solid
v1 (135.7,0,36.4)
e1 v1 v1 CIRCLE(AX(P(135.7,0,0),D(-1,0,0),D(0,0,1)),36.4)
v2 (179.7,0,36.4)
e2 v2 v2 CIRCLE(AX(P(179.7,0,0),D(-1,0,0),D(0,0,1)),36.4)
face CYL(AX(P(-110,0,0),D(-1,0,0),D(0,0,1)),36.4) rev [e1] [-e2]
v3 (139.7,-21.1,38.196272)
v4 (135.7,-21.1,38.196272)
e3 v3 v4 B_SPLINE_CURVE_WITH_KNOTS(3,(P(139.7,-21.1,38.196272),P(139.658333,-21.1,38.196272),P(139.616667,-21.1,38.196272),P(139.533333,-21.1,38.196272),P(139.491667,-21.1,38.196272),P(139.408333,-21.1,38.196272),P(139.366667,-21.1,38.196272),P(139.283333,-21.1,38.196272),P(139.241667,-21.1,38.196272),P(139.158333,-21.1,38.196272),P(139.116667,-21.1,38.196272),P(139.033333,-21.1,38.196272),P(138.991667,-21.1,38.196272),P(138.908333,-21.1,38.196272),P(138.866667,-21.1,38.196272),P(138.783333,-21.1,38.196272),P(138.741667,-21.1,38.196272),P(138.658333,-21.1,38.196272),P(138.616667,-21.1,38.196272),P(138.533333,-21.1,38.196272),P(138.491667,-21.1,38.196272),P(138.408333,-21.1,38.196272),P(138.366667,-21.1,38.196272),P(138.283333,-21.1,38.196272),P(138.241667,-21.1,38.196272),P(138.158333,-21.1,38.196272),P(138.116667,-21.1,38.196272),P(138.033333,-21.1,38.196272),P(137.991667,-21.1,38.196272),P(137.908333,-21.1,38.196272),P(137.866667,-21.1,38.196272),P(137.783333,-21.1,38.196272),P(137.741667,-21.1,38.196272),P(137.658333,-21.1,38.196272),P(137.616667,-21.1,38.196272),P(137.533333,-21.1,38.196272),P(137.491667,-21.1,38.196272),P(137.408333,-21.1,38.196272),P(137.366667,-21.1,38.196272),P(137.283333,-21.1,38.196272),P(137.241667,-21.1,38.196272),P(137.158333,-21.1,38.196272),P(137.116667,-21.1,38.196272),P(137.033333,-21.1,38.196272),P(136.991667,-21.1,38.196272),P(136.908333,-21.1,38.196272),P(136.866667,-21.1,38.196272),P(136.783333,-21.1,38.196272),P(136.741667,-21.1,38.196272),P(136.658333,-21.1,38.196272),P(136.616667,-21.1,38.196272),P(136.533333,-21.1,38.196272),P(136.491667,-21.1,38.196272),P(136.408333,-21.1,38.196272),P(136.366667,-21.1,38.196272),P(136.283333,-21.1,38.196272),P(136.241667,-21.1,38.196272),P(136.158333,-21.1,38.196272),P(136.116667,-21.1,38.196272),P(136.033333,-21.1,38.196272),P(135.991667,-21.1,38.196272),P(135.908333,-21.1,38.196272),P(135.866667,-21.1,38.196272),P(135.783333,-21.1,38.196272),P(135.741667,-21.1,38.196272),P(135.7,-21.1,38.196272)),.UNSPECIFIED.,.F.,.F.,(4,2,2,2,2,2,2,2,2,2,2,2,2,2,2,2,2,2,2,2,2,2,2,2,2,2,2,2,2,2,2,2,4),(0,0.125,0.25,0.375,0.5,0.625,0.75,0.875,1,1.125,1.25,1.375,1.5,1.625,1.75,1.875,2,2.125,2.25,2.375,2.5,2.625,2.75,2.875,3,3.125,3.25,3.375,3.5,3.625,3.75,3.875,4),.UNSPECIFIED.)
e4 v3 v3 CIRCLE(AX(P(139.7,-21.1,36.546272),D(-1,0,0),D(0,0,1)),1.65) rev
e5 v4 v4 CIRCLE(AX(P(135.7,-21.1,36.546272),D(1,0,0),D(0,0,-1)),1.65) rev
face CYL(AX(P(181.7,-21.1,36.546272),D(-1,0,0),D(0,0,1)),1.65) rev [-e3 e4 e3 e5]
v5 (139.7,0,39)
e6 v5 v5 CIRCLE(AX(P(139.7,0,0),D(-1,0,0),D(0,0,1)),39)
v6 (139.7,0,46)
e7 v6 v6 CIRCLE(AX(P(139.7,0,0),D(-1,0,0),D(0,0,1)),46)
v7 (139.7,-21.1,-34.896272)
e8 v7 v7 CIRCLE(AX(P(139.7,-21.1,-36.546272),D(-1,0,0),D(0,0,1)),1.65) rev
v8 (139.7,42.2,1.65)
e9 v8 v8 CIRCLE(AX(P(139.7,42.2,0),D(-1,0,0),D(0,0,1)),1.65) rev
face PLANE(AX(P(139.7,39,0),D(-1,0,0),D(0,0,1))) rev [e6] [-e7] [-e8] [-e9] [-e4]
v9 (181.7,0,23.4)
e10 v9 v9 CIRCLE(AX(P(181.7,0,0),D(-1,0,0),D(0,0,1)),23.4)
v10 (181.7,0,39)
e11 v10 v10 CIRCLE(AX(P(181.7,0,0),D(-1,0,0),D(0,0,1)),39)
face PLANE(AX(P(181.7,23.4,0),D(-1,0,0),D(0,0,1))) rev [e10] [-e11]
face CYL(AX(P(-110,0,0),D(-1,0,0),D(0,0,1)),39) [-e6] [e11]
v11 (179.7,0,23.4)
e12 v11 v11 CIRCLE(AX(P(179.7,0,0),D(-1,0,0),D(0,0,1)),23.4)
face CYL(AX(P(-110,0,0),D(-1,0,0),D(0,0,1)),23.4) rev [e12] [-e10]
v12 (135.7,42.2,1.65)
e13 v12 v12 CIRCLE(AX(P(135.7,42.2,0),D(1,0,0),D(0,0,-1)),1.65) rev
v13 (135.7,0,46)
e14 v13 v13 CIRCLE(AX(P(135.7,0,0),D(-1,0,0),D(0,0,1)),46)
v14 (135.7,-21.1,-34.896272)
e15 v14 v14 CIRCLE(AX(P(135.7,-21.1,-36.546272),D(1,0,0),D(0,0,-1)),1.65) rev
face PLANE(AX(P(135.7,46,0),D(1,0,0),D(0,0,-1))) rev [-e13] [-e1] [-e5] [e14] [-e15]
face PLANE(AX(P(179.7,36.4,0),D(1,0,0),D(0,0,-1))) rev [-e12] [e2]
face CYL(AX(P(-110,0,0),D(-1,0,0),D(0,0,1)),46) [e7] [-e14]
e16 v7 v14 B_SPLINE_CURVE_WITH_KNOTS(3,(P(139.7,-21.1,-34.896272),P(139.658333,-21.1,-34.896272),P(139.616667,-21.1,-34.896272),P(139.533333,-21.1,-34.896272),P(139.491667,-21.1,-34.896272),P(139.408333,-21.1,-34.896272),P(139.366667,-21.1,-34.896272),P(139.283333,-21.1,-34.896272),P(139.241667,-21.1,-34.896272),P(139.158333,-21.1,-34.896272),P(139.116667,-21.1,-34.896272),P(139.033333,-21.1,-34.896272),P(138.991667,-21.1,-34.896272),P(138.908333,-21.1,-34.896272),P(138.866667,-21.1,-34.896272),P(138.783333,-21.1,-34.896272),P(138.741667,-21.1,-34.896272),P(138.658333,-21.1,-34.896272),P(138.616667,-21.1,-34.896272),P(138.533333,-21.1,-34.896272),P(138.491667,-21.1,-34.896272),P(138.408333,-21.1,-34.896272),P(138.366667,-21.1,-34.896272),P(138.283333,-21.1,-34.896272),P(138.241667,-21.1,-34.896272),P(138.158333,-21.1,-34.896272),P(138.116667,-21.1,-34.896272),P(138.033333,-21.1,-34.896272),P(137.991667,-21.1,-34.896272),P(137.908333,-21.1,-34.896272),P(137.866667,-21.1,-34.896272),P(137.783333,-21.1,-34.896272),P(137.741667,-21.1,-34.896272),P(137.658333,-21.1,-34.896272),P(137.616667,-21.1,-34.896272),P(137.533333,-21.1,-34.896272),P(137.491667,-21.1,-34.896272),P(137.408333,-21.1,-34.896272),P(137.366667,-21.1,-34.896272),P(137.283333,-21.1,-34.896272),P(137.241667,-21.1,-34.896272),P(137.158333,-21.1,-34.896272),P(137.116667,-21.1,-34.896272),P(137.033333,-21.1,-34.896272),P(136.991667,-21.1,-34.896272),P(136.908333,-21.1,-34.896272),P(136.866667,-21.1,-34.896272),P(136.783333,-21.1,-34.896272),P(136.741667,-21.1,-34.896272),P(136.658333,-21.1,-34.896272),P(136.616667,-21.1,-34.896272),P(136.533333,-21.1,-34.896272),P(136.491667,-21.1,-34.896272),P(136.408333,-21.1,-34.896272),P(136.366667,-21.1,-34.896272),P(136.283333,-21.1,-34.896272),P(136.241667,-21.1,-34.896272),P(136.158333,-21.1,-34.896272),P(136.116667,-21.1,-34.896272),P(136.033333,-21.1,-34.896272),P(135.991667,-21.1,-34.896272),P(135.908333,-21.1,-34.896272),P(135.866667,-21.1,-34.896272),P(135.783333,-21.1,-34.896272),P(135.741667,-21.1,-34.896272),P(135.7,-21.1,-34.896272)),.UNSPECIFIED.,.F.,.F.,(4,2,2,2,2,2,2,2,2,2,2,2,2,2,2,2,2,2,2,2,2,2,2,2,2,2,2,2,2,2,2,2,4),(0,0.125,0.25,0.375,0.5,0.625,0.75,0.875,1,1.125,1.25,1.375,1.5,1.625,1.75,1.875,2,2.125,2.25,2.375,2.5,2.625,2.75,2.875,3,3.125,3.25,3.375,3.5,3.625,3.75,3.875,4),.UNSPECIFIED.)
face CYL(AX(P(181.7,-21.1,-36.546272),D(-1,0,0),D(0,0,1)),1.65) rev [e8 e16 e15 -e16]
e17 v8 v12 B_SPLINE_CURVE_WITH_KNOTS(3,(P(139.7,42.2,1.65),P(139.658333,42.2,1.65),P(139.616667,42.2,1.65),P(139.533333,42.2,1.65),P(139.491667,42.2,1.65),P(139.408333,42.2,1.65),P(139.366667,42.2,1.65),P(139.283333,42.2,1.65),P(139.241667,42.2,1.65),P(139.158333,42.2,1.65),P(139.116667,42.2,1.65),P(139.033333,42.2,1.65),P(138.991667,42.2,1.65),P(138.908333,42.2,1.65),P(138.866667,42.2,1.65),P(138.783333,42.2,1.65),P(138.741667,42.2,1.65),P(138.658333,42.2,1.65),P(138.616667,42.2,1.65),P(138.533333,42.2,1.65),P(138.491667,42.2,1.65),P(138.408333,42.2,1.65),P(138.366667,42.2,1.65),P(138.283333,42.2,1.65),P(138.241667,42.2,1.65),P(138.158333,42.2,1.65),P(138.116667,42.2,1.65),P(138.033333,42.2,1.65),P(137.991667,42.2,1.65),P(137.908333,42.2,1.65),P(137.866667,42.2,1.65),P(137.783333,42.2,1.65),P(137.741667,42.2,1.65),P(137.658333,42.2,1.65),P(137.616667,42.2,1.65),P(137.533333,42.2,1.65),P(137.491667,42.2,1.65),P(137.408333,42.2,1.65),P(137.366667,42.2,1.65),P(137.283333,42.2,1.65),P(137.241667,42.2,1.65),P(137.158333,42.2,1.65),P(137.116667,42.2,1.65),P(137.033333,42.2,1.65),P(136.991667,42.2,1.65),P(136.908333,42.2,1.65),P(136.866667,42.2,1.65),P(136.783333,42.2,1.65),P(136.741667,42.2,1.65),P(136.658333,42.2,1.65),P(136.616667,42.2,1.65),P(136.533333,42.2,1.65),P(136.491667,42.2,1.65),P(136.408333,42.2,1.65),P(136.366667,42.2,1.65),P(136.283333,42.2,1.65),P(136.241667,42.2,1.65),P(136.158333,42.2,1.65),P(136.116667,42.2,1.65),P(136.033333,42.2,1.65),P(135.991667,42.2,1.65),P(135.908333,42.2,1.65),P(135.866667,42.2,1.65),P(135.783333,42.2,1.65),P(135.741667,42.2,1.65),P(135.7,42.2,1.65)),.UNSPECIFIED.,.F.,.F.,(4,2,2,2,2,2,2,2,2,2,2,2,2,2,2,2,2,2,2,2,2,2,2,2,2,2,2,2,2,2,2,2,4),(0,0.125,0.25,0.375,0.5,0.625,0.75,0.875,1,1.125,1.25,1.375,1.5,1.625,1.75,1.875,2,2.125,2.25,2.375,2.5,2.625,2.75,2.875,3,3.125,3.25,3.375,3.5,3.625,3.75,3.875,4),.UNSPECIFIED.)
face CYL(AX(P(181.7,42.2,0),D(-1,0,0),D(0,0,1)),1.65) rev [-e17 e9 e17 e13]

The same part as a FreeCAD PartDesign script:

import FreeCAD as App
import Part
import Sketcher


def add_polygon(sketch, points):
    """Adds a closed chain of lines whose ends are joined by coincident constraints."""
    first, n = sketch.GeometryCount, len(points)
    for a, b in zip(points, points[1:] + points[:1]):
        sketch.addGeometry(Part.LineSegment(App.Vector(*a, 0), App.Vector(*b, 0)), False)
    for i in range(n):
        sketch.addConstraint(Sketcher.Constraint("Coincident", first + i, 2, first + (i + 1) % n, 1))

doc = App.newDocument("Part")
body = doc.addObject("PartDesign::Body", "Body")

# Sketch on XY plane
sketch1 = doc.addObject("Sketcher::SketchObject", "Sketch")
body.addObject(sketch1)
sketch1.AttachmentSupport = (doc.XY_Plane, [""])
sketch1.MapMode = "FlatFace"
add_polygon(sketch1, [(135.7, 36.4), (179.7, 36.4), (179.7, 23.4), (181.7, 23.4), (181.7, 39), (139.7, 39), (139.7, 46), (135.7, 46)])  # lines 0-7
sketch1.addConstraint([
    Sketcher.Constraint("Horizontal", 0),
    Sketcher.Constraint("Vertical", 1),
    Sketcher.Constraint("Horizontal", 2),
    Sketcher.Constraint("Vertical", 3),
    Sketcher.Constraint("Horizontal", 4),
    Sketcher.Constraint("Vertical", 5),
    Sketcher.Constraint("Horizontal", 6),
    Sketcher.Constraint("Vertical", 7),
    Sketcher.Constraint("DistanceX", 0, 1, 0, 2, 44.0),
    Sketcher.Constraint("DistanceX", 2, 1, 2, 2, 2.0),
    Sketcher.Constraint("DistanceX", 4, 2, 4, 1, 42.0),
    Sketcher.Constraint("DistanceY", 1, 2, 1, 1, 13.0),
    Sketcher.Constraint("DistanceY", 5, 1, 5, 2, 7.0),
    Sketcher.Constraint("DistanceY", 3, 1, 3, 2, 15.6),
    Sketcher.Constraint("DistanceY", -1, 1, 3, 2, 39.0),
    Sketcher.Constraint("DistanceX", -1, 1, 0, 2, 179.7),
])
revolution = doc.addObject("PartDesign::Revolution", "Revolution")
body.addObject(revolution)
revolution.Profile = sketch1
revolution.ReferenceAxis = (sketch1, ["H_Axis"])
revolution.Angle = 360

# Sketch on YZ plane
sketch2 = doc.addObject("Sketcher::SketchObject", "Sketch001")
body.addObject(sketch2)
sketch2.AttachmentSupport = (doc.YZ_Plane, [""])
sketch2.MapMode = "FlatFace"
sketch2.addGeometry([
    Part.Circle(App.Vector(42.2, 0, 0), App.Vector(0, 0, 1), 1.6),
    Part.Circle(App.Vector(-21.1, 36.5, 0), App.Vector(0, 0, 1), 1.6),
    Part.Circle(App.Vector(-21.1, -36.5, 0), App.Vector(0, 0, 1), 1.6),
], False)
sketch2.addConstraint([
    Sketcher.Constraint("Equal", 0, 1),
    Sketcher.Constraint("Equal", 1, 2),
    Sketcher.Constraint("Symmetric", 1, 3, 2, 3, -1),
    Sketcher.Constraint("PointOnObject", 0, 3, -1),
    Sketcher.Constraint("Diameter", 0, 3.3),
    Sketcher.Constraint("DistanceX", -1, 1, 0, 3, 42.2),
    Sketcher.Constraint("DistanceX", 1, 3, -1, 1, 21.1),
    Sketcher.Constraint("DistanceY", -1, 1, 1, 3, 36.546272),
])
pocket1 = doc.addObject("PartDesign::Pocket", "Pocket")
body.addObject(pocket1)
pocket1.Profile = sketch2
pocket1.Type = "ThroughAll"
pocket1.Midplane = True

doc.recompute()
